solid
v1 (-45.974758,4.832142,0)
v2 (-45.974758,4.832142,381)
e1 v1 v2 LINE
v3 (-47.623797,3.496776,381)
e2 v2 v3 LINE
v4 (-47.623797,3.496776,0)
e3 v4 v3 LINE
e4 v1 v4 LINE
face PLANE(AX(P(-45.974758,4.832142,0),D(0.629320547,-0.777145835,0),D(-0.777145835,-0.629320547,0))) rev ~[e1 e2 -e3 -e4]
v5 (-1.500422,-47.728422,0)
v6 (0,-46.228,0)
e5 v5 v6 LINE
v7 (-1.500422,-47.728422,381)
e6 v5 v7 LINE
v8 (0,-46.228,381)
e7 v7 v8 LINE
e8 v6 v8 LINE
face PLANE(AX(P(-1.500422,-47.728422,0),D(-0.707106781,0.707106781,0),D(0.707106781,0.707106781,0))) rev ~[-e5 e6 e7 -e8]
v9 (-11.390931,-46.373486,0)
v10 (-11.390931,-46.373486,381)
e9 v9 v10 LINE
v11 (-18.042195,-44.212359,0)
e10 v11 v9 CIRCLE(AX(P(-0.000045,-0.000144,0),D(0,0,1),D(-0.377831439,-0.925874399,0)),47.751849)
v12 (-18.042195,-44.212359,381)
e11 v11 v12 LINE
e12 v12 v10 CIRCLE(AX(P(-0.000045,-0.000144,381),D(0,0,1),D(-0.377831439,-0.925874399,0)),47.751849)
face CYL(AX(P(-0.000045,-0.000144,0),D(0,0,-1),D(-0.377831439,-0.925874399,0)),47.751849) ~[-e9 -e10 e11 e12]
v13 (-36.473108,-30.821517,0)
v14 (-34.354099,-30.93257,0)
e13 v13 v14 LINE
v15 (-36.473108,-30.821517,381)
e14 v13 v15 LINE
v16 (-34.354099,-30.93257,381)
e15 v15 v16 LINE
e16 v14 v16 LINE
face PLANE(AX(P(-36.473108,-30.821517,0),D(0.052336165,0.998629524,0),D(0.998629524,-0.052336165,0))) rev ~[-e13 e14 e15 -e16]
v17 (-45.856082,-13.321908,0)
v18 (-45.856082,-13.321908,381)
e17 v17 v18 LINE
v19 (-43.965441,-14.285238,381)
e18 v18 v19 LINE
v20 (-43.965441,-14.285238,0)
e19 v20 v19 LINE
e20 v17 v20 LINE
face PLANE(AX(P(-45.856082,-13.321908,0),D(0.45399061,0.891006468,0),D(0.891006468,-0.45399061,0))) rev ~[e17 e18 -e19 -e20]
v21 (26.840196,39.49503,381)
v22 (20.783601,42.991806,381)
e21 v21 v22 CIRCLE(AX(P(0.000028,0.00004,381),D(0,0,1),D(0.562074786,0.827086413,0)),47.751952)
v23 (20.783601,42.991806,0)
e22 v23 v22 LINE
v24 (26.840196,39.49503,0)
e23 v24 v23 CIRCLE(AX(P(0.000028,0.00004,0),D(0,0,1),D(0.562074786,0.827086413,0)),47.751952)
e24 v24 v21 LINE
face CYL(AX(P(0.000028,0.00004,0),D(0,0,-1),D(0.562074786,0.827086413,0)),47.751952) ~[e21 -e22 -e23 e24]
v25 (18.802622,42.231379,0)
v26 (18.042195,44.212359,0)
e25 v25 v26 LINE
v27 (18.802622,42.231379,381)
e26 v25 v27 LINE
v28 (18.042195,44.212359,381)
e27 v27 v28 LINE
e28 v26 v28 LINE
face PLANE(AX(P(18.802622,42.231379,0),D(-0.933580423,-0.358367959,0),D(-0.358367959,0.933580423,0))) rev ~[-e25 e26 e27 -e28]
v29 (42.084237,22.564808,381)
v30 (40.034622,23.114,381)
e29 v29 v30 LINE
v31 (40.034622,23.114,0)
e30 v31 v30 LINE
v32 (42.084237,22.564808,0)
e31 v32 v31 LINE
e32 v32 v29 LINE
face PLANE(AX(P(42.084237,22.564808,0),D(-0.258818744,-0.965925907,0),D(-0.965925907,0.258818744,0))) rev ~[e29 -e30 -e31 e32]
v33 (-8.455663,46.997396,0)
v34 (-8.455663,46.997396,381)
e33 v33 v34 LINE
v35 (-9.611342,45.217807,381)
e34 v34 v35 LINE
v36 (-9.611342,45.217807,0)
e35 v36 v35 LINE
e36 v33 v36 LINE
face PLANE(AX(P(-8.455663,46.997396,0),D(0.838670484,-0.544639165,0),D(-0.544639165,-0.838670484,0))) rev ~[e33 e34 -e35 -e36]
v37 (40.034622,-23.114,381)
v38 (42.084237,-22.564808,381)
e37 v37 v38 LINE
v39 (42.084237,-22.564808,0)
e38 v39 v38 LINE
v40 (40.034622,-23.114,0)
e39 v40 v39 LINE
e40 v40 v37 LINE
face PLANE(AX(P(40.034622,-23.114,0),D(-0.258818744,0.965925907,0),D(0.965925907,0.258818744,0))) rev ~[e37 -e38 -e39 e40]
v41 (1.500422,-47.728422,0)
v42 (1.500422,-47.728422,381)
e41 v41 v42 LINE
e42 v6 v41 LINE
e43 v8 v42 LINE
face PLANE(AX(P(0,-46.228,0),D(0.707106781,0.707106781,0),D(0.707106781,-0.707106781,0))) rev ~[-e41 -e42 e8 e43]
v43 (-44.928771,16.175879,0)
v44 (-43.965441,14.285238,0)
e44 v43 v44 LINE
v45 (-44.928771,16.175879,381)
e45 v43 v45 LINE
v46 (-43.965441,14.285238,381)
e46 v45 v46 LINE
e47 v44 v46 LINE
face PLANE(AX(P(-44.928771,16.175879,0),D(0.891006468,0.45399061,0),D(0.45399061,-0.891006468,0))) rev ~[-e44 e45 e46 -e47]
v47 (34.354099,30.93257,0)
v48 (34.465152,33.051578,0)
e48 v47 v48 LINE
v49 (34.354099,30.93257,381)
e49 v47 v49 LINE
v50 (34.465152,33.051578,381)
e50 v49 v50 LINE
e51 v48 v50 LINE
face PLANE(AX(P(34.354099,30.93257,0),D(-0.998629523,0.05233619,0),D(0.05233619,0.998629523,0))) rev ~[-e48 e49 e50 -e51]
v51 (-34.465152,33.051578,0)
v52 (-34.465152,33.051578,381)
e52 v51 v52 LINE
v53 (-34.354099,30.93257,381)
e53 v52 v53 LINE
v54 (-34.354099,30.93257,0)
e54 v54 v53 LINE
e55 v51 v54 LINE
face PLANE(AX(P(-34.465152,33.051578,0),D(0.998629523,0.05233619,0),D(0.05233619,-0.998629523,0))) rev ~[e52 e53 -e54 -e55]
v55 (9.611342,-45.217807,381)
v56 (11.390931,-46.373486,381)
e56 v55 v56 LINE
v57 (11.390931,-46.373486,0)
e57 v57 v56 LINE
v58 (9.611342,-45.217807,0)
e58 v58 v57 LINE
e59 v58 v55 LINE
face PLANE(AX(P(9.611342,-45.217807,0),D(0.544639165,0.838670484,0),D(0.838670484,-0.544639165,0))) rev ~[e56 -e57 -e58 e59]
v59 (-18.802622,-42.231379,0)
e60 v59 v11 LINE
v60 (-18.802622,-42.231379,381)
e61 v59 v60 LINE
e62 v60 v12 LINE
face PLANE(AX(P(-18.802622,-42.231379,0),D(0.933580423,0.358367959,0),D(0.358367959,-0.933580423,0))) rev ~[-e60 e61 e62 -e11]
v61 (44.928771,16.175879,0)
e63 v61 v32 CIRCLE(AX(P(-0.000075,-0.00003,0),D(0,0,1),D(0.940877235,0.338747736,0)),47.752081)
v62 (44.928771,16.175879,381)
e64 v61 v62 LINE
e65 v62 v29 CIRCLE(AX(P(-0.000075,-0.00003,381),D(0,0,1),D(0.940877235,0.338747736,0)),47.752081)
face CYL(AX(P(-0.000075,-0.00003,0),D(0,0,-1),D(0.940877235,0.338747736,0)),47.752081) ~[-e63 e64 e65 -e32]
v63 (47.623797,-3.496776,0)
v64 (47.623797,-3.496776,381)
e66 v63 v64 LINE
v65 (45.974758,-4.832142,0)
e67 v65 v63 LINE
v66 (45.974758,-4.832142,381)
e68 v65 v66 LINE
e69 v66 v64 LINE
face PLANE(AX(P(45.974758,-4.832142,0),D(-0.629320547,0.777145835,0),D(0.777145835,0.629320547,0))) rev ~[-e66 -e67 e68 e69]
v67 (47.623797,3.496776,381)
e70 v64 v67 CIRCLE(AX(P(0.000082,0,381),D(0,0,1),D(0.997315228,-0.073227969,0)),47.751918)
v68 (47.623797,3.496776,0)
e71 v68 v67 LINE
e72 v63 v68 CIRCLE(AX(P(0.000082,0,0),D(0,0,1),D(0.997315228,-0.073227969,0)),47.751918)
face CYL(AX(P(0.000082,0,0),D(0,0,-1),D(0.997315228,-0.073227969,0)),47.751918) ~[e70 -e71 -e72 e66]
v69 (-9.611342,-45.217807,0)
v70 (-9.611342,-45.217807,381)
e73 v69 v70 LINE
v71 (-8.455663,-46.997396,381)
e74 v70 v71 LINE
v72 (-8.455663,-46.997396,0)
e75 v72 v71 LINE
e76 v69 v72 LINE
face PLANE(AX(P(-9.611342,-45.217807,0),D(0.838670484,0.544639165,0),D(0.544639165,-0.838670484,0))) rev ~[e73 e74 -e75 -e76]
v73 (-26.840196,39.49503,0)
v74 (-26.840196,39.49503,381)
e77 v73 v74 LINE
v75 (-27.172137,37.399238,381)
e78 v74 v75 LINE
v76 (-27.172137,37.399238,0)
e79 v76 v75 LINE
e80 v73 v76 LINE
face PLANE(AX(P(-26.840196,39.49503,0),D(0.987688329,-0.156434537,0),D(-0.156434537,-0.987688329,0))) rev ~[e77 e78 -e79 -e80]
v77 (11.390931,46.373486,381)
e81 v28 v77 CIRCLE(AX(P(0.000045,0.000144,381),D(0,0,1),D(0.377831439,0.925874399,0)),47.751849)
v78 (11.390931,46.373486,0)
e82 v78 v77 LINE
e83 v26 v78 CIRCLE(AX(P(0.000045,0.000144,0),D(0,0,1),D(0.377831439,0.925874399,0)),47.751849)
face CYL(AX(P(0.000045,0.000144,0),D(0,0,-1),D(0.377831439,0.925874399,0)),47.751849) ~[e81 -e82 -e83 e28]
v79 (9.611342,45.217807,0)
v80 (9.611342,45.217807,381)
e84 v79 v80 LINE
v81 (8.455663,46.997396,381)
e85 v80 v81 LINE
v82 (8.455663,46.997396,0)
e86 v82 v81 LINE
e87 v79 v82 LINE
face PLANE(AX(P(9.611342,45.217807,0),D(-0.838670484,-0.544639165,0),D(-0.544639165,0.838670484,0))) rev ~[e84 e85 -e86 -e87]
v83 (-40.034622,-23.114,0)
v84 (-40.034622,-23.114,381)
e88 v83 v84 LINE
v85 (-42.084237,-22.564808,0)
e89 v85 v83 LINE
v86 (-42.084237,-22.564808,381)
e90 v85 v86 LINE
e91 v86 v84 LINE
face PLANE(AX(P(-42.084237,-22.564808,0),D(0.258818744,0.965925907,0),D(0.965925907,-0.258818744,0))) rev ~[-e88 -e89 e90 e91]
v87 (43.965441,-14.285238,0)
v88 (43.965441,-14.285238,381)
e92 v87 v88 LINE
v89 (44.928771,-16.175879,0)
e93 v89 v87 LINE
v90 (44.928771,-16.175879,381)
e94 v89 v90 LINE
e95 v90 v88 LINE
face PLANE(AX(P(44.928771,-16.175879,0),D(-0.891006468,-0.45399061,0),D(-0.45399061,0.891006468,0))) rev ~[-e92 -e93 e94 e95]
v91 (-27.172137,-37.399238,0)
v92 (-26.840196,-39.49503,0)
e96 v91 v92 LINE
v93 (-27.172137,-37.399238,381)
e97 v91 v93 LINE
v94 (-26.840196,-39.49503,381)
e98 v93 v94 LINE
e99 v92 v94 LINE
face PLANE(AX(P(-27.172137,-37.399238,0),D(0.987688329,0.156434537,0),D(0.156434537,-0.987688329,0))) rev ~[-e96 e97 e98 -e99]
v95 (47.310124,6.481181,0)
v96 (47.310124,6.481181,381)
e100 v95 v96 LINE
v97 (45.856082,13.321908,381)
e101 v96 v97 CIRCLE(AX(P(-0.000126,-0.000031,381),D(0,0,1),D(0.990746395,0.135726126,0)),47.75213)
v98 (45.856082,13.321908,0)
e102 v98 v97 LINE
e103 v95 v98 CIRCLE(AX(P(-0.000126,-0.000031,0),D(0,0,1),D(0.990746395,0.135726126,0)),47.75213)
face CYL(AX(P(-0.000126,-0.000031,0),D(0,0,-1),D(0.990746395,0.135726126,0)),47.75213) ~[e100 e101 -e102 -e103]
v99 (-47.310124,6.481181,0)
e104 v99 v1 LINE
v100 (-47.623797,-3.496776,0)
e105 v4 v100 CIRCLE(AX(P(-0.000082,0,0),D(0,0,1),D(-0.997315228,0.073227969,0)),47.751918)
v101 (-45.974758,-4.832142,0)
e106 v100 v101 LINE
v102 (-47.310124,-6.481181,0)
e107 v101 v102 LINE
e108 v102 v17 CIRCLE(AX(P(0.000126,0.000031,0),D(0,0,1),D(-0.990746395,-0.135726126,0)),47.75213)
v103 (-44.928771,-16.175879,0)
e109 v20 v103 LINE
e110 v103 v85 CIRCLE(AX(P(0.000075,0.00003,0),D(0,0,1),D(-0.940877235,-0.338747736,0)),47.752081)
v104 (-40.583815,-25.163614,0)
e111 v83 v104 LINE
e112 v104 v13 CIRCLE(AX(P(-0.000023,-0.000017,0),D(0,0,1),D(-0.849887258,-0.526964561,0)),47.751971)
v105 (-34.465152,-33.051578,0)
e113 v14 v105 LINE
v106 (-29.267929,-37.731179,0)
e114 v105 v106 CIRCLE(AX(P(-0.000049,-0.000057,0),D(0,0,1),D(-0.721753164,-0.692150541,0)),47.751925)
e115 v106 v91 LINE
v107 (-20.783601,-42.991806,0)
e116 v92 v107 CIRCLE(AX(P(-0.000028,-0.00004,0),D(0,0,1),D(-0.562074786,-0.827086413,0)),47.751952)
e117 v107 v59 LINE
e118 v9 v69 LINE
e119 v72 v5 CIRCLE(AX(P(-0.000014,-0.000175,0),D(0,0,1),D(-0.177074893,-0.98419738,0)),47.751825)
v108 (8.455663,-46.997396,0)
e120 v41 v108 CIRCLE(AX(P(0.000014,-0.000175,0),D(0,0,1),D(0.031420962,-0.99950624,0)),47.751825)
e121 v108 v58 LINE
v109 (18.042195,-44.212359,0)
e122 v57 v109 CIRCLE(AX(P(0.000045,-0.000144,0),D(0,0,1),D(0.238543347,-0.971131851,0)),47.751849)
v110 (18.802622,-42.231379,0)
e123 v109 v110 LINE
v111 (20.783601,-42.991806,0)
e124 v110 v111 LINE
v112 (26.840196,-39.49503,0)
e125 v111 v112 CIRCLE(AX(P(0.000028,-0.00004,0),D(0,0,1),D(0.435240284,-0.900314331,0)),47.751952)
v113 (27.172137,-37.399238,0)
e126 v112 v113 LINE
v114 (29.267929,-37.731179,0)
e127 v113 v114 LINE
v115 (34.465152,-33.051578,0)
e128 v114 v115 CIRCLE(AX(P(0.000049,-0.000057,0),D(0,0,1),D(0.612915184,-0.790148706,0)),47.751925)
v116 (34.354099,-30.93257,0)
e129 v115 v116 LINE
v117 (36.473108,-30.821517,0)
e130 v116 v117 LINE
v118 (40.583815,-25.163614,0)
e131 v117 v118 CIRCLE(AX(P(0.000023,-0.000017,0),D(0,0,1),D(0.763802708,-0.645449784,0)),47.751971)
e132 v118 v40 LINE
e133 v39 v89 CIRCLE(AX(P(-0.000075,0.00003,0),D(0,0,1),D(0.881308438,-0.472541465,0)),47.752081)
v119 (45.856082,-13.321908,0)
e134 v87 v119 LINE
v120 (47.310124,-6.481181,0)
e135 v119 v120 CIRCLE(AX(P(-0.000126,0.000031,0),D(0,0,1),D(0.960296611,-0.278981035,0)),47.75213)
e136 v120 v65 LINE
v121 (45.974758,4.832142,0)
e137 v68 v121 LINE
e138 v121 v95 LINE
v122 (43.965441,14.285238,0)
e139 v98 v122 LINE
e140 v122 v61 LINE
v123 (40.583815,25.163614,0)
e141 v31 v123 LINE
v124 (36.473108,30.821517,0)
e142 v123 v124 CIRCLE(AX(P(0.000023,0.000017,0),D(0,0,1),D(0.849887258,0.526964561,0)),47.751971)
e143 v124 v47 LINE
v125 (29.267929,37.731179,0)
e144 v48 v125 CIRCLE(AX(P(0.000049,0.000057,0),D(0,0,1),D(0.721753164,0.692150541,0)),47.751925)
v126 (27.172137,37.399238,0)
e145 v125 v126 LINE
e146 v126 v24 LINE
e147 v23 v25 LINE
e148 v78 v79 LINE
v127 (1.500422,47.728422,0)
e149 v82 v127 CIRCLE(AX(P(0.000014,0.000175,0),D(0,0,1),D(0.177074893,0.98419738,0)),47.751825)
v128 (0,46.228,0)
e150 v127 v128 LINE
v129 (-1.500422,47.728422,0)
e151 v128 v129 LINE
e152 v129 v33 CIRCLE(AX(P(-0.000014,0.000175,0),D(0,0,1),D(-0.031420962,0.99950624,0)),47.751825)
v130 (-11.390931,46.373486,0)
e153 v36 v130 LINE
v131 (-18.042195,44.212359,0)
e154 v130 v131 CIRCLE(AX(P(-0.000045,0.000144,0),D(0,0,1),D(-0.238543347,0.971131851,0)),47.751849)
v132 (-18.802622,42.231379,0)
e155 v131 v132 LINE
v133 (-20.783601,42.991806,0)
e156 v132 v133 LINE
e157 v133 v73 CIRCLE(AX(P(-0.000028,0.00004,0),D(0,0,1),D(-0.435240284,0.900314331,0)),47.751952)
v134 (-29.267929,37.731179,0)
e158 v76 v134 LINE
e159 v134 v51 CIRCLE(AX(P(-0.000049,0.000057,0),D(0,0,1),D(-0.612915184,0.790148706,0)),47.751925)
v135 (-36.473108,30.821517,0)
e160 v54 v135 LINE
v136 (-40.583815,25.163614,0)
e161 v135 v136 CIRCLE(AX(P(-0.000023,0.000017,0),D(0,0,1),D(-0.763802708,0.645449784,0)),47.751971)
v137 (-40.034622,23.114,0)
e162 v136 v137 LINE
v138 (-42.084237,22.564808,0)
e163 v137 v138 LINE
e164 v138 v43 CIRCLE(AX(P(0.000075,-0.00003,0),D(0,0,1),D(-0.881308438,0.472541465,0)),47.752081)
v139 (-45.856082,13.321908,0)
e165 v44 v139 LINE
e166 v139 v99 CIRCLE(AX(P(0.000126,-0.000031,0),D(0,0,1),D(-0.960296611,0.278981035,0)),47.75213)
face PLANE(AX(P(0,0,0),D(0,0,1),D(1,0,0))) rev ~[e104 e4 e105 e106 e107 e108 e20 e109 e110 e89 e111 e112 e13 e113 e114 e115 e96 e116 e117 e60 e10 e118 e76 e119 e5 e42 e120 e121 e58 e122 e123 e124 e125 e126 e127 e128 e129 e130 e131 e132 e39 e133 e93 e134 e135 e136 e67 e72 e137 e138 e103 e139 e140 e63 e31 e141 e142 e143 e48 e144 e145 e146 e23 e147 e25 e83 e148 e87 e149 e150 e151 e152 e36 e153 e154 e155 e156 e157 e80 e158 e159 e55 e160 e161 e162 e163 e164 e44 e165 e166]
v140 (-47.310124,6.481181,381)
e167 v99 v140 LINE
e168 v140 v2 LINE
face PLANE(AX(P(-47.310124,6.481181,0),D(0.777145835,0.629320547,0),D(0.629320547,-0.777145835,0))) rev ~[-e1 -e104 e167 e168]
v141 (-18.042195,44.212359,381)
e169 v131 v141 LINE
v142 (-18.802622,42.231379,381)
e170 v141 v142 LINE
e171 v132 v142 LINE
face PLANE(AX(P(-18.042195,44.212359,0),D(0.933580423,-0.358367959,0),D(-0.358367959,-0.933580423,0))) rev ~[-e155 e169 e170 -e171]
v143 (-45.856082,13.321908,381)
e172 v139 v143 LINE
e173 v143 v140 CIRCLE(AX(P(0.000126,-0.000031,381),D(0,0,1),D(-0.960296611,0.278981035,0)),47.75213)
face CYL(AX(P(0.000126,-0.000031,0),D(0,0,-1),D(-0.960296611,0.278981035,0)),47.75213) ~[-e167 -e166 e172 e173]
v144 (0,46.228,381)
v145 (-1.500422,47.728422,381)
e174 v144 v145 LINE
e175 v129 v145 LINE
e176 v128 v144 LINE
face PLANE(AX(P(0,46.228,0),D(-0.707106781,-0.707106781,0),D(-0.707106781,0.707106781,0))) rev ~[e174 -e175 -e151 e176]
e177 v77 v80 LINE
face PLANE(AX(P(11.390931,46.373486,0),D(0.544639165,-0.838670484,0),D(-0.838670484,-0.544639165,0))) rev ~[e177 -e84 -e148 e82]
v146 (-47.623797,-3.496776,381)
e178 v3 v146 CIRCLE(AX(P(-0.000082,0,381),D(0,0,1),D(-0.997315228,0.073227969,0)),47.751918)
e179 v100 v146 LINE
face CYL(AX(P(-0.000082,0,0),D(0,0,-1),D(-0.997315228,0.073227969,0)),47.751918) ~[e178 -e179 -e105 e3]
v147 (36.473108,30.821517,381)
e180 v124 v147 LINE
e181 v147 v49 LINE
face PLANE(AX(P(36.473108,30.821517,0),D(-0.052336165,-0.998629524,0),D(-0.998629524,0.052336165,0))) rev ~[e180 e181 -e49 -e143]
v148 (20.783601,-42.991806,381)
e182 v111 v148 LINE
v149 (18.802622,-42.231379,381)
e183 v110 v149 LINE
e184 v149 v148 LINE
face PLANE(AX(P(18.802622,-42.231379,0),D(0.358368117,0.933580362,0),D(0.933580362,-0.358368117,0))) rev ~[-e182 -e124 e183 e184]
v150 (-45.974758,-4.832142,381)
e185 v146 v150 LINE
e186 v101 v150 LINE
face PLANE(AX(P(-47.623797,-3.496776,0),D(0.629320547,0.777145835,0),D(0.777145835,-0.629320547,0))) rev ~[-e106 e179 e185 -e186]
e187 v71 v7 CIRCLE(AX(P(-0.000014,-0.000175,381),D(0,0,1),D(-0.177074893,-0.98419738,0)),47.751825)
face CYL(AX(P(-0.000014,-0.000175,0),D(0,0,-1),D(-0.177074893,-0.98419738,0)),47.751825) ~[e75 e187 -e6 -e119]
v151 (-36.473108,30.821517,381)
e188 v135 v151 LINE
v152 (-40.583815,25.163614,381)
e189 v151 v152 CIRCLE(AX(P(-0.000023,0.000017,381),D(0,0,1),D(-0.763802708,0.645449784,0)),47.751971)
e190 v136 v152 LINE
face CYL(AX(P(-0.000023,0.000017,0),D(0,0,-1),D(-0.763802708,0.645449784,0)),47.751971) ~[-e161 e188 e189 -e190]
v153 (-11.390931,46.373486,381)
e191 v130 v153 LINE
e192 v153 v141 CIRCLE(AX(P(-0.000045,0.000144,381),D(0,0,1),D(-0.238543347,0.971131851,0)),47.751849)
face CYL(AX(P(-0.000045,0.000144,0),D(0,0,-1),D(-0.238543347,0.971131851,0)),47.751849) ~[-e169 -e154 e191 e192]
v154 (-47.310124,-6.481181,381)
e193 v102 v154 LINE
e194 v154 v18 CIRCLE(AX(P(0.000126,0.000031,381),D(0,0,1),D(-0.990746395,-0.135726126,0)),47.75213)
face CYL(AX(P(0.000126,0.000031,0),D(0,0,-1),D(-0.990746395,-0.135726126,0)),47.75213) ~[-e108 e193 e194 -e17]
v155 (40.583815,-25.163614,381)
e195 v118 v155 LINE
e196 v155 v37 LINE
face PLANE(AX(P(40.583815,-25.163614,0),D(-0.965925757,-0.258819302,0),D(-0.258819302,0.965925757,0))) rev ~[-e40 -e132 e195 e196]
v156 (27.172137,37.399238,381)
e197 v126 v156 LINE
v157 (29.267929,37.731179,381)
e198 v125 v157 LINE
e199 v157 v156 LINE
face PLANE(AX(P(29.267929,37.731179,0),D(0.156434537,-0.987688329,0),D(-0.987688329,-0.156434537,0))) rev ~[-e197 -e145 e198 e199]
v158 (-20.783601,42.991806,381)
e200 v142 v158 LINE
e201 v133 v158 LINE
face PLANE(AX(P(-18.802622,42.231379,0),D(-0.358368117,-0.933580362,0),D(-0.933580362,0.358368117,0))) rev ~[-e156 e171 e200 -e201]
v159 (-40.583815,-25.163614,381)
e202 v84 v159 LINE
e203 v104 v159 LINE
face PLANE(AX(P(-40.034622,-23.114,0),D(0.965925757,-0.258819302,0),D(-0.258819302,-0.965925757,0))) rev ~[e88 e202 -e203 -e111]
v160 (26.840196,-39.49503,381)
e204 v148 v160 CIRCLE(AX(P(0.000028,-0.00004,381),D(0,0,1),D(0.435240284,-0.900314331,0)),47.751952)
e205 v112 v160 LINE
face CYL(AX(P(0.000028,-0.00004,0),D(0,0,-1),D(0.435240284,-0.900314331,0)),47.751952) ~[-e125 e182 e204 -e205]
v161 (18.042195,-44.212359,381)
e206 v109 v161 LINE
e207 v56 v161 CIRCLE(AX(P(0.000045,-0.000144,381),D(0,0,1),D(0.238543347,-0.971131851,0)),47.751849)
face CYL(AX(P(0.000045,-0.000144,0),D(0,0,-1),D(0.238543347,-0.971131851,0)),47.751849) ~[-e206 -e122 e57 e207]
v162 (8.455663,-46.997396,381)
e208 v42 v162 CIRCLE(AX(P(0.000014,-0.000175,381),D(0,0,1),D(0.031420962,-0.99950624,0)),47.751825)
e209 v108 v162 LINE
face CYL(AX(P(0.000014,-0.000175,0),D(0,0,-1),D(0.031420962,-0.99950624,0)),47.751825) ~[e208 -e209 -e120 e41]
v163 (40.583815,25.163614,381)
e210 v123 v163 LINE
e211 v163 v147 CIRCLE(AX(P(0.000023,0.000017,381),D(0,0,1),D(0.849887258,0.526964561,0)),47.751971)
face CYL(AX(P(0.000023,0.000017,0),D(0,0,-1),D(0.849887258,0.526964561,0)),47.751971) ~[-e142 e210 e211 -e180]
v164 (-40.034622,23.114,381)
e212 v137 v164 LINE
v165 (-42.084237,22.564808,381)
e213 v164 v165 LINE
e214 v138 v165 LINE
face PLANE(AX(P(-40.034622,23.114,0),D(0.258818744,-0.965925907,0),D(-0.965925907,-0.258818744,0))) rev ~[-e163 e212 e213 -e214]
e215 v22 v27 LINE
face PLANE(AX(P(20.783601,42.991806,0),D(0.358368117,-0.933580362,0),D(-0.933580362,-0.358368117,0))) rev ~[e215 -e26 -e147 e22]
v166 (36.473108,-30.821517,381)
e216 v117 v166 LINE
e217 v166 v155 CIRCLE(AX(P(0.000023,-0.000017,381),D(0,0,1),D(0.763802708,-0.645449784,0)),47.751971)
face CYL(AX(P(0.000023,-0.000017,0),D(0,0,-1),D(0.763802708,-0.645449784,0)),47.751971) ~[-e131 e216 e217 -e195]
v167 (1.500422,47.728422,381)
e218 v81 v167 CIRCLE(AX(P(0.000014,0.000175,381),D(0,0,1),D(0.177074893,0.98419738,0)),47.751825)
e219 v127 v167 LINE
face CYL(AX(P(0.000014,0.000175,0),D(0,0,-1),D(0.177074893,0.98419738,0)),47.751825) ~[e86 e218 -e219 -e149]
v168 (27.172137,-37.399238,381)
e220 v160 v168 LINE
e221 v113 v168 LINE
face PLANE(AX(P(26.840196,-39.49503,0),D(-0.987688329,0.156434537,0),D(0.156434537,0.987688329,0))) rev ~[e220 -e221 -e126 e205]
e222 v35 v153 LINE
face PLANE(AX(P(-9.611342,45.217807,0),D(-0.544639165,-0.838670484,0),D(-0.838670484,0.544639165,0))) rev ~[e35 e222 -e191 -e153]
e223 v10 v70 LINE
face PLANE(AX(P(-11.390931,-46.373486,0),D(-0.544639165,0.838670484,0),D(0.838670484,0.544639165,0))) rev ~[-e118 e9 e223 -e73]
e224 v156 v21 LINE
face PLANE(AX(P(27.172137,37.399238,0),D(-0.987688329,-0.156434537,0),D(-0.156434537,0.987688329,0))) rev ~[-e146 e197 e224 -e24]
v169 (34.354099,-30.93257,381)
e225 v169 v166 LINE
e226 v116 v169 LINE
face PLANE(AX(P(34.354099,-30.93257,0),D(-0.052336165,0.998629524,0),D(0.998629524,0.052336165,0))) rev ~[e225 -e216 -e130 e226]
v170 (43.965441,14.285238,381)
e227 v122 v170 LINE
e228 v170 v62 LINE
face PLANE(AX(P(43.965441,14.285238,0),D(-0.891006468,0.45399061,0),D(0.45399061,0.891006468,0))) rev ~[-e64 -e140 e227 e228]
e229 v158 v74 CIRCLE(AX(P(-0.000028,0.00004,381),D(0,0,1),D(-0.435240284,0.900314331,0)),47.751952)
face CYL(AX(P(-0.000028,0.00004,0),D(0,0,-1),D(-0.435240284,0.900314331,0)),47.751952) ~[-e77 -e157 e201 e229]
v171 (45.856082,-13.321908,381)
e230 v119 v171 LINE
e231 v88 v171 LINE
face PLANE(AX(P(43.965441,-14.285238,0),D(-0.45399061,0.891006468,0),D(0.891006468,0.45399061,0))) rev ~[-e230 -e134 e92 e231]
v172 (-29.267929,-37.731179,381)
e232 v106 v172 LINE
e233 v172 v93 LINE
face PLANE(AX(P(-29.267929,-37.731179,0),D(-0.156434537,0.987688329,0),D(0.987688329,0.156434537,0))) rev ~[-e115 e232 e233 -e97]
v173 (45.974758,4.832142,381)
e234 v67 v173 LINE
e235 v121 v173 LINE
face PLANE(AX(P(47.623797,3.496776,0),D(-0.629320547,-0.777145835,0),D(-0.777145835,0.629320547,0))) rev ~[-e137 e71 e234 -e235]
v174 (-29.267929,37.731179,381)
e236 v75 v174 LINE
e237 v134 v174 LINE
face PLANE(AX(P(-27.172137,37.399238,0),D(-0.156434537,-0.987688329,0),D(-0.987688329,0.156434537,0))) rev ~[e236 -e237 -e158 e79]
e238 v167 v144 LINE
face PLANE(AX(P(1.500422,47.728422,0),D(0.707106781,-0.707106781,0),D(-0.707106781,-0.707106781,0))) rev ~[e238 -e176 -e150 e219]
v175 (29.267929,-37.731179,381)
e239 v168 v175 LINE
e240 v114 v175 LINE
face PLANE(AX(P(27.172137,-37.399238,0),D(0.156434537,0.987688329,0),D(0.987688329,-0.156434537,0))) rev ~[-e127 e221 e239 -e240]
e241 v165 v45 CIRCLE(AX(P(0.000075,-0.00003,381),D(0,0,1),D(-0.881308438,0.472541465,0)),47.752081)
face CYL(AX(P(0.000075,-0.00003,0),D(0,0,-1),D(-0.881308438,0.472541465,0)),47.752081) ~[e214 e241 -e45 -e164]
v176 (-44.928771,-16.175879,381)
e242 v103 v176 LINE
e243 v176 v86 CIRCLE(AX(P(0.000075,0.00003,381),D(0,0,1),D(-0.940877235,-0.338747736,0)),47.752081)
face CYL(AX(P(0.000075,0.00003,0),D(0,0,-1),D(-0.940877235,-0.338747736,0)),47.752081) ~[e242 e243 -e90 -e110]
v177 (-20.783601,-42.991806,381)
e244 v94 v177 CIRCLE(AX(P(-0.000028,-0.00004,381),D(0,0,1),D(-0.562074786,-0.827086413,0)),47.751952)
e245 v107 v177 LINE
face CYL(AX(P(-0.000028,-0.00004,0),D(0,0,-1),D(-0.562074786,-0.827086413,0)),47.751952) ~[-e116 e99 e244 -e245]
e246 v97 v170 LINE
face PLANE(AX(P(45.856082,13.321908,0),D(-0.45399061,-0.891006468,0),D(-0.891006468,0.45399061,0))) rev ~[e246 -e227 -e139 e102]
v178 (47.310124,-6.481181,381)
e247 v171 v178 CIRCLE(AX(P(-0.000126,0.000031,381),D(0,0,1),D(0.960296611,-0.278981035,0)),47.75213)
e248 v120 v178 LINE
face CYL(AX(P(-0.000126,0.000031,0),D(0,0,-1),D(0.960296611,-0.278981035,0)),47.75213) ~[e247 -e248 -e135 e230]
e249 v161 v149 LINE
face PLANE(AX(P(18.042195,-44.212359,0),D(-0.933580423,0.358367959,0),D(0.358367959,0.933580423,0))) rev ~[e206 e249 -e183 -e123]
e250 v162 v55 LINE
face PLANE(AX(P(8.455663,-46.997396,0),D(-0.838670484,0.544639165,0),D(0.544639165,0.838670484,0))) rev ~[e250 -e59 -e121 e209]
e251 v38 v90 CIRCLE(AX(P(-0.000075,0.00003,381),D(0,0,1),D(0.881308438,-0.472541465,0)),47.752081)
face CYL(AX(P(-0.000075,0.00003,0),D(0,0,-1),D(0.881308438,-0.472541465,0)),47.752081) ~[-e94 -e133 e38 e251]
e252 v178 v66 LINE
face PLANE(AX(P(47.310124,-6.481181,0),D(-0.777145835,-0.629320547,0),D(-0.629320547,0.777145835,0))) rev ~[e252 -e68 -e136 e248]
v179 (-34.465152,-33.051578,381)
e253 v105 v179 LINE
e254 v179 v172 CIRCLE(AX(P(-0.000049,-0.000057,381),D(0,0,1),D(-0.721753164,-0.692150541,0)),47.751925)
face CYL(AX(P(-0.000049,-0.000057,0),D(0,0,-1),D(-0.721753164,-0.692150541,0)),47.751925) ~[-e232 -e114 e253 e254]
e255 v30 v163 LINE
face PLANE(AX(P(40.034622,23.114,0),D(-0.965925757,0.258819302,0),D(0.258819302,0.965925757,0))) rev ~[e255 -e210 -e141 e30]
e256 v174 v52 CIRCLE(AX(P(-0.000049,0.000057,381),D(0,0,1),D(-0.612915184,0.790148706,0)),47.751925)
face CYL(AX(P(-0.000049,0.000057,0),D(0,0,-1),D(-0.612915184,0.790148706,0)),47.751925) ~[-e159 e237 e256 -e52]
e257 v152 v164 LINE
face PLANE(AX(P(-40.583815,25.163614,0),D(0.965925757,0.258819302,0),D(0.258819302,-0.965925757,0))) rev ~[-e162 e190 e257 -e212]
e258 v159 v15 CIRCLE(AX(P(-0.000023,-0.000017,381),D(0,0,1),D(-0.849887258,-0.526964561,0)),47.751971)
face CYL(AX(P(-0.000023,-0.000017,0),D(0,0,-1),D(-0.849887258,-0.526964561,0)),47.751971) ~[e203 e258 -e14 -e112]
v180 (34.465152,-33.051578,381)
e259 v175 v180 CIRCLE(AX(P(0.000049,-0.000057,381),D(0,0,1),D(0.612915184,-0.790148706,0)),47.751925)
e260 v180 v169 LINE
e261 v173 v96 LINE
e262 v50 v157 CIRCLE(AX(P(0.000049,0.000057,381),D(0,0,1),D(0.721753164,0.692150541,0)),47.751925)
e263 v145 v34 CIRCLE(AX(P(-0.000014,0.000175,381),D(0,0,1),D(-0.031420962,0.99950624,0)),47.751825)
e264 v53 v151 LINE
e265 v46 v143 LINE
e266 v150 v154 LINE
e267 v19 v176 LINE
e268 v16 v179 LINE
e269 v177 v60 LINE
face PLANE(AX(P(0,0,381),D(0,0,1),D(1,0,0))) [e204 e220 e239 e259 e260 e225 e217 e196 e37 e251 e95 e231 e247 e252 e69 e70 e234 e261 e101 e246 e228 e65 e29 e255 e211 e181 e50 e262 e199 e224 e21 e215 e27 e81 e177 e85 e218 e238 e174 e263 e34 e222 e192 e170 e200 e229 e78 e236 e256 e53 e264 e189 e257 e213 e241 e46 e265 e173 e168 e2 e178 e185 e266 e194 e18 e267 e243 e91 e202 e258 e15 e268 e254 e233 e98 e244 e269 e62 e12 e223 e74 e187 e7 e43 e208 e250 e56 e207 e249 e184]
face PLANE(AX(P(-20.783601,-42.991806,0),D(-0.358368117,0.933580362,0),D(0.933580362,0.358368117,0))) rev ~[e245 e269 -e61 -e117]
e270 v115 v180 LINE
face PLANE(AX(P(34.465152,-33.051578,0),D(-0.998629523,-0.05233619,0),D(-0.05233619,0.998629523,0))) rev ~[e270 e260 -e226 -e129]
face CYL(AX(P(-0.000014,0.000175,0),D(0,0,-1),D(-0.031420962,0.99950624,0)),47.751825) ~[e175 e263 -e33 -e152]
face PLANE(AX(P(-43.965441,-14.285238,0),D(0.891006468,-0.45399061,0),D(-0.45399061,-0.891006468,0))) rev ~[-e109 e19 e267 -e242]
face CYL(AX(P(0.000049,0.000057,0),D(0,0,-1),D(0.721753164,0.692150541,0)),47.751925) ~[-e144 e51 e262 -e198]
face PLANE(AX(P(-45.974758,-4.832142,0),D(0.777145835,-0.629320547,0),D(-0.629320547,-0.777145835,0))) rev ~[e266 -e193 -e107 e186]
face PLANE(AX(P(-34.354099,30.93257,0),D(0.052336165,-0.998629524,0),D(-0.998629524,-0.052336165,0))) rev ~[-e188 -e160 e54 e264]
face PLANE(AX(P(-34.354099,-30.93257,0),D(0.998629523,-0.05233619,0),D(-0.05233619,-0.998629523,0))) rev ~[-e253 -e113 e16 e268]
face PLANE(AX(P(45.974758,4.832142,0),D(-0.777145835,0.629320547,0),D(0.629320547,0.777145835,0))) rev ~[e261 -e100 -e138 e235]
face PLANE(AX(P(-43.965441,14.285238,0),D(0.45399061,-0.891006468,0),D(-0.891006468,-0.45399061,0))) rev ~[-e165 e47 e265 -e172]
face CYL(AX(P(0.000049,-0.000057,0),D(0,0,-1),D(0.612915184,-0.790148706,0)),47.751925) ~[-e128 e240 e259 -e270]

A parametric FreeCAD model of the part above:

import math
import FreeCAD as App
import Part
import Sketcher
Q = App.Units.Quantity

doc = App.newDocument("Part")
body = doc.addObject("PartDesign::Body", "Body")

sketch1 = doc.addObject("Sketcher::SketchObject", "Sketch")
body.addObject(sketch1)
sketch1.AttachmentSupport = (doc.XY_Plane, [""])
sketch1.MapMode = "FlatFace"
sketch1.addGeometry([
    Part.LineSegment(App.Vector(0, -46.228, 0), App.Vector(1.500422, -47.728422, 0)),
    Part.ArcOfCircle(Part.Circle(App.Vector(0.000014, -0.000175, 0), App.Vector(0, 0, 1), 47.751825), math.radians(-88.199415), math.radians(-79.800573)),
    Part.LineSegment(App.Vector(8.455663, -46.997396, 0), App.Vector(9.611342, -45.217807, 0)),
    Part.LineSegment(App.Vector(9.611342, -45.217807, 0), App.Vector(11.390931, -46.373486, 0)),
    Part.ArcOfCircle(Part.Circle(App.Vector(0.000045, -0.000144, 0), App.Vector(0, 0, 1), 47.751849), math.radians(-76.199417), math.radians(-67.800578)),
    Part.LineSegment(App.Vector(18.042195, -44.212359, 0), App.Vector(18.802622, -42.231379, 0)),
    Part.LineSegment(App.Vector(18.802622, -42.231379, 0), App.Vector(20.783601, -42.991806, 0)),
    Part.ArcOfCircle(Part.Circle(App.Vector(0.000028, -0.00004, 0), App.Vector(0, 0, 1), 47.751952), math.radians(-64.199416), math.radians(-55.800595)),
    Part.LineSegment(App.Vector(26.840196, -39.49503, 0), App.Vector(27.172137, -37.399238, 0)),
    Part.LineSegment(App.Vector(27.172137, -37.399238, 0), App.Vector(29.267929, -37.731179, 0)),
    Part.ArcOfCircle(Part.Circle(App.Vector(0.000049, -0.000057, 0), App.Vector(0, 0, 1), 47.751925), math.radians(-52.19941), math.radians(-43.800585)),
    Part.LineSegment(App.Vector(34.465152, -33.051578, 0), App.Vector(34.354099, -30.93257, 0)),
    Part.LineSegment(App.Vector(34.354099, -30.93257, 0), App.Vector(36.473108, -30.821517, 0)),
    Part.ArcOfCircle(Part.Circle(App.Vector(0.000023, -0.000017, 0), App.Vector(0, 0, 1), 47.751971), math.radians(-40.199407), math.radians(-31.800591)),
    Part.LineSegment(App.Vector(40.583815, -25.163614, 0), App.Vector(40.034622, -23.114, 0)),
    Part.LineSegment(App.Vector(40.034622, -23.114, 0), App.Vector(42.084237, -22.564808, 0)),
    Part.ArcOfCircle(Part.Circle(App.Vector(-0.000075, 0.00003, 0), App.Vector(0, 0, 1), 47.752081), math.radians(-28.199395), math.radians(-19.800598)),
    Part.LineSegment(App.Vector(44.928771, -16.175879, 0), App.Vector(43.965441, -14.285238, 0)),
    Part.LineSegment(App.Vector(43.965441, -14.285238, 0), App.Vector(45.856082, -13.321908, 0)),
    Part.ArcOfCircle(Part.Circle(App.Vector(-0.000126, 0.000031, 0), App.Vector(0, 0, 1), 47.75213), math.radians(-16.199399), math.radians(-7.80061)),
    Part.LineSegment(App.Vector(47.310124, -6.481181, 0), App.Vector(45.974758, -4.832142, 0)),
    Part.LineSegment(App.Vector(45.974758, -4.832142, 0), App.Vector(47.623797, -3.496776, 0)),
    Part.ArcOfCircle(Part.Circle(App.Vector(0.000082, 0, 0), App.Vector(0, 0, 1), 47.751918), math.radians(-4.199412), math.radians(4.199412)),
    Part.LineSegment(App.Vector(47.623797, 3.496776, 0), App.Vector(45.974758, 4.832142, 0)),
    Part.LineSegment(App.Vector(45.974758, 4.832142, 0), App.Vector(47.310124, 6.481181, 0)),
    Part.ArcOfCircle(Part.Circle(App.Vector(-0.000126, -0.000031, 0), App.Vector(0, 0, 1), 47.75213), math.radians(7.80061), math.radians(16.199399)),
    Part.LineSegment(App.Vector(45.856082, 13.321908, 0), App.Vector(43.965441, 14.285238, 0)),
    Part.LineSegment(App.Vector(43.965441, 14.285238, 0), App.Vector(44.928771, 16.175879, 0)),
    Part.ArcOfCircle(Part.Circle(App.Vector(-0.000075, -0.00003, 0), App.Vector(0, 0, 1), 47.752081), math.radians(19.800598), math.radians(28.199395)),
    Part.LineSegment(App.Vector(42.084237, 22.564808, 0), App.Vector(40.034622, 23.114, 0)),
    Part.LineSegment(App.Vector(40.034622, 23.114, 0), App.Vector(40.583815, 25.163614, 0)),
    Part.ArcOfCircle(Part.Circle(App.Vector(0.000023, 0.000017, 0), App.Vector(0, 0, 1), 47.751971), math.radians(31.800591), math.radians(40.199407)),
    Part.LineSegment(App.Vector(36.473108, 30.821517, 0), App.Vector(34.354099, 30.93257, 0)),
    Part.LineSegment(App.Vector(34.354099, 30.93257, 0), App.Vector(34.465152, 33.051578, 0)),
    Part.ArcOfCircle(Part.Circle(App.Vector(0.000049, 0.000057, 0), App.Vector(0, 0, 1), 47.751925), math.radians(43.800585), math.radians(52.19941)),
    Part.LineSegment(App.Vector(29.267929, 37.731179, 0), App.Vector(27.172137, 37.399238, 0)),
    Part.LineSegment(App.Vector(27.172137, 37.399238, 0), App.Vector(26.840196, 39.49503, 0)),
    Part.ArcOfCircle(Part.Circle(App.Vector(0.000028, 0.00004, 0), App.Vector(0, 0, 1), 47.751952), math.radians(55.800595), math.radians(64.199416)),
    Part.LineSegment(App.Vector(20.783601, 42.991806, 0), App.Vector(18.802622, 42.231379, 0)),
    Part.LineSegment(App.Vector(18.802622, 42.231379, 0), App.Vector(18.042195, 44.212359, 0)),
    Part.ArcOfCircle(Part.Circle(App.Vector(0.000045, 0.000144, 0), App.Vector(0, 0, 1), 47.751849), math.radians(67.800578), math.radians(76.199417)),
    Part.LineSegment(App.Vector(11.390931, 46.373486, 0), App.Vector(9.611342, 45.217807, 0)),
    Part.LineSegment(App.Vector(9.611342, 45.217807, 0), App.Vector(8.455663, 46.997396, 0)),
    Part.ArcOfCircle(Part.Circle(App.Vector(0.000014, 0.000175, 0), App.Vector(0, 0, 1), 47.751825), math.radians(79.800573), math.radians(88.199415)),
    Part.LineSegment(App.Vector(1.500422, 47.728422, 0), App.Vector(0, 46.228, 0)),
    Part.LineSegment(App.Vector(0, 46.228, 0), App.Vector(-1.500422, 47.728422, 0)),
    Part.ArcOfCircle(Part.Circle(App.Vector(-0.000014, 0.000175, 0), App.Vector(0, 0, 1), 47.751825), math.radians(91.800585), math.radians(100.199427)),
    Part.LineSegment(App.Vector(-8.455663, 46.997396, 0), App.Vector(-9.611342, 45.217807, 0)),
    Part.LineSegment(App.Vector(-9.611342, 45.217807, 0), App.Vector(-11.390931, 46.373486, 0)),
    Part.ArcOfCircle(Part.Circle(App.Vector(-0.000045, 0.000144, 0), App.Vector(0, 0, 1), 47.751849), math.radians(103.800583), math.radians(112.199422)),
    Part.LineSegment(App.Vector(-18.042195, 44.212359, 0), App.Vector(-18.802622, 42.231379, 0)),
    Part.LineSegment(App.Vector(-18.802622, 42.231379, 0), App.Vector(-20.783601, 42.991806, 0)),
    Part.ArcOfCircle(Part.Circle(App.Vector(-0.000028, 0.00004, 0), App.Vector(0, 0, 1), 47.751952), math.radians(115.800584), math.radians(124.199405)),
    Part.LineSegment(App.Vector(-26.840196, 39.49503, 0), App.Vector(-27.172137, 37.399238, 0)),
    Part.LineSegment(App.Vector(-27.172137, 37.399238, 0), App.Vector(-29.267929, 37.731179, 0)),
    Part.ArcOfCircle(Part.Circle(App.Vector(-0.000049, 0.000057, 0), App.Vector(0, 0, 1), 47.751925), math.radians(127.80059), math.radians(136.199415)),
    Part.LineSegment(App.Vector(-34.465152, 33.051578, 0), App.Vector(-34.354099, 30.93257, 0)),
    Part.LineSegment(App.Vector(-34.354099, 30.93257, 0), App.Vector(-36.473108, 30.821517, 0)),
    Part.ArcOfCircle(Part.Circle(App.Vector(-0.000023, 0.000017, 0), App.Vector(0, 0, 1), 47.751971), math.radians(139.800593), math.radians(148.199409)),
    Part.LineSegment(App.Vector(-40.583815, 25.163614, 0), App.Vector(-40.034622, 23.114, 0)),
    Part.LineSegment(App.Vector(-40.034622, 23.114, 0), App.Vector(-42.084237, 22.564808, 0)),
    Part.ArcOfCircle(Part.Circle(App.Vector(0.000075, -0.00003, 0), App.Vector(0, 0, 1), 47.752081), math.radians(151.800605), math.radians(160.199402)),
    Part.LineSegment(App.Vector(-44.928771, 16.175879, 0), App.Vector(-43.965441, 14.285238, 0)),
    Part.LineSegment(App.Vector(-43.965441, 14.285238, 0), App.Vector(-45.856082, 13.321908, 0)),
    Part.ArcOfCircle(Part.Circle(App.Vector(0.000126, -0.000031, 0), App.Vector(0, 0, 1), 47.75213), math.radians(163.800601), math.radians(172.19939)),
    Part.LineSegment(App.Vector(-47.310124, 6.481181, 0), App.Vector(-45.974758, 4.832142, 0)),
    Part.LineSegment(App.Vector(-45.974758, 4.832142, 0), App.Vector(-47.623797, 3.496776, 0)),
    Part.ArcOfCircle(Part.Circle(App.Vector(-0.000082, 0, 0), App.Vector(0, 0, 1), 47.751918), math.radians(175.800588), math.radians(184.199412)),
    Part.LineSegment(App.Vector(-47.623797, -3.496776, 0), App.Vector(-45.974758, -4.832142, 0)),
    Part.LineSegment(App.Vector(-45.974758, -4.832142, 0), App.Vector(-47.310124, -6.481181, 0)),
    Part.ArcOfCircle(Part.Circle(App.Vector(0.000126, 0.000031, 0), App.Vector(0, 0, 1), 47.75213), math.radians(-172.19939), math.radians(-163.800601)),
    Part.LineSegment(App.Vector(-45.856082, -13.321908, 0), App.Vector(-43.965441, -14.285238, 0)),
    Part.LineSegment(App.Vector(-43.965441, -14.285238, 0), App.Vector(-44.928771, -16.175879, 0)),
    Part.ArcOfCircle(Part.Circle(App.Vector(0.000075, 0.00003, 0), App.Vector(0, 0, 1), 47.752081), math.radians(-160.199402), math.radians(-151.800605)),
    Part.LineSegment(App.Vector(-42.084237, -22.564808, 0), App.Vector(-40.034622, -23.114, 0)),
    Part.LineSegment(App.Vector(-40.034622, -23.114, 0), App.Vector(-40.583815, -25.163614, 0)),
    Part.ArcOfCircle(Part.Circle(App.Vector(-0.000023, -0.000017, 0), App.Vector(0, 0, 1), 47.751971), math.radians(-148.199409), math.radians(-139.800593)),
    Part.LineSegment(App.Vector(-36.473108, -30.821517, 0), App.Vector(-34.354099, -30.93257, 0)),
    Part.LineSegment(App.Vector(-34.354099, -30.93257, 0), App.Vector(-34.465152, -33.051578, 0)),
    Part.ArcOfCircle(Part.Circle(App.Vector(-0.000049, -0.000057, 0), App.Vector(0, 0, 1), 47.751925), math.radians(-136.199415), math.radians(-127.80059)),
    Part.LineSegment(App.Vector(-29.267929, -37.731179, 0), App.Vector(-27.172137, -37.399238, 0)),
    Part.LineSegment(App.Vector(-27.172137, -37.399238, 0), App.Vector(-26.840196, -39.49503, 0)),
    Part.ArcOfCircle(Part.Circle(App.Vector(-0.000028, -0.00004, 0), App.Vector(0, 0, 1), 47.751952), math.radians(-124.199405), math.radians(-115.800584)),
    Part.LineSegment(App.Vector(-20.783601, -42.991806, 0), App.Vector(-18.802622, -42.231379, 0)),
    Part.LineSegment(App.Vector(-18.802622, -42.231379, 0), App.Vector(-18.042195, -44.212359, 0)),
    Part.ArcOfCircle(Part.Circle(App.Vector(-0.000045, -0.000144, 0), App.Vector(0, 0, 1), 47.751849), math.radians(-112.199422), math.radians(-103.800583)),
    Part.LineSegment(App.Vector(-11.390931, -46.373486, 0), App.Vector(-9.611342, -45.217807, 0)),
    Part.LineSegment(App.Vector(-9.611342, -45.217807, 0), App.Vector(-8.455663, -46.997396, 0)),
    Part.ArcOfCircle(Part.Circle(App.Vector(-0.000014, -0.000175, 0), App.Vector(0, 0, 1), 47.751825), math.radians(-100.199427), math.radians(-91.800585)),
    Part.LineSegment(App.Vector(-1.500422, -47.728422, 0), App.Vector(0, -46.228, 0)),
], False)
sketch1.addConstraint([
    Sketcher.Constraint("Coincident", 0, 2, 1, 1),
    Sketcher.Constraint("Coincident", 1, 2, 2, 1),
    Sketcher.Constraint("Coincident", 2, 2, 3, 1),
    Sketcher.Constraint("Coincident", 3, 2, 4, 1),
    Sketcher.Constraint("Coincident", 4, 2, 5, 1),
    Sketcher.Constraint("Coincident", 5, 2, 6, 1),
    Sketcher.Constraint("Coincident", 6, 2, 7, 1),
    Sketcher.Constraint("Coincident", 7, 2, 8, 1),
    Sketcher.Constraint("Coincident", 8, 2, 9, 1),
    Sketcher.Constraint("Coincident", 9, 2, 10, 1),
    Sketcher.Constraint("Coincident", 10, 2, 11, 1),
    Sketcher.Constraint("Coincident", 11, 2, 12, 1),
    Sketcher.Constraint("Coincident", 12, 2, 13, 1),
    Sketcher.Constraint("Coincident", 13, 2, 14, 1),
    Sketcher.Constraint("Coincident", 14, 2, 15, 1),
    Sketcher.Constraint("Coincident", 15, 2, 16, 1),
    Sketcher.Constraint("Coincident", 16, 2, 17, 1),
    Sketcher.Constraint("Coincident", 17, 2, 18, 1),
    Sketcher.Constraint("Coincident", 18, 2, 19, 1),
    Sketcher.Constraint("Coincident", 19, 2, 20, 1),
    Sketcher.Constraint("Coincident", 20, 2, 21, 1),
    Sketcher.Constraint("Coincident", 21, 2, 22, 1),
    Sketcher.Constraint("Coincident", 22, 2, 23, 1),
    Sketcher.Constraint("Coincident", 23, 2, 24, 1),
    Sketcher.Constraint("Coincident", 24, 2, 25, 1),
    Sketcher.Constraint("Coincident", 25, 2, 26, 1),
    Sketcher.Constraint("Coincident", 26, 2, 27, 1),
    Sketcher.Constraint("Coincident", 27, 2, 28, 1),
    Sketcher.Constraint("Coincident", 28, 2, 29, 1),
    Sketcher.Constraint("Coincident", 29, 2, 30, 1),
    Sketcher.Constraint("Coincident", 30, 2, 31, 1),
    Sketcher.Constraint("Coincident", 31, 2, 32, 1),
    Sketcher.Constraint("Coincident", 32, 2, 33, 1),
    Sketcher.Constraint("Coincident", 33, 2, 34, 1),
    Sketcher.Constraint("Coincident", 34, 2, 35, 1),
    Sketcher.Constraint("Coincident", 35, 2, 36, 1),
    Sketcher.Constraint("Coincident", 36, 2, 37, 1),
    Sketcher.Constraint("Coincident", 37, 2, 38, 1),
    Sketcher.Constraint("Coincident", 38, 2, 39, 1),
    Sketcher.Constraint("Coincident", 39, 2, 40, 1),
    Sketcher.Constraint("Coincident", 40, 2, 41, 1),
    Sketcher.Constraint("Coincident", 41, 2, 42, 1),
    Sketcher.Constraint("Coincident", 42, 2, 43, 1),
    Sketcher.Constraint("Coincident", 43, 2, 44, 1),
    Sketcher.Constraint("Coincident", 44, 2, 45, 1),
    Sketcher.Constraint("Coincident", 45, 2, 46, 1),
    Sketcher.Constraint("Coincident", 46, 2, 47, 1),
    Sketcher.Constraint("Coincident", 47, 2, 48, 1),
    Sketcher.Constraint("Coincident", 48, 2, 49, 1),
    Sketcher.Constraint("Coincident", 49, 2, 50, 1),
    Sketcher.Constraint("Coincident", 50, 2, 51, 1),
    Sketcher.Constraint("Coincident", 51, 2, 52, 1),
    Sketcher.Constraint("Coincident", 52, 2, 53, 1),
    Sketcher.Constraint("Coincident", 53, 2, 54, 1),
    Sketcher.Constraint("Coincident", 54, 2, 55, 1),
    Sketcher.Constraint("Coincident", 55, 2, 56, 1),
    Sketcher.Constraint("Coincident", 56, 2, 57, 1),
    Sketcher.Constraint("Coincident", 57, 2, 58, 1),
    Sketcher.Constraint("Coincident", 58, 2, 59, 1),
    Sketcher.Constraint("Coincident", 59, 2, 60, 1),
    Sketcher.Constraint("Coincident", 60, 2, 61, 1),
    Sketcher.Constraint("Coincident", 61, 2, 62, 1),
    Sketcher.Constraint("Coincident", 62, 2, 63, 1),
    Sketcher.Constraint("Coincident", 63, 2, 64, 1),
    Sketcher.Constraint("Coincident", 64, 2, 65, 1),
    Sketcher.Constraint("Coincident", 65, 2, 66, 1),
    Sketcher.Constraint("Coincident", 66, 2, 67, 1),
    Sketcher.Constraint("Coincident", 67, 2, 68, 1),
    Sketcher.Constraint("Coincident", 68, 2, 69, 1),
    Sketcher.Constraint("Coincident", 69, 2, 70, 1),
    Sketcher.Constraint("Coincident", 70, 2, 71, 1),
    Sketcher.Constraint("Coincident", 71, 2, 72, 1),
    Sketcher.Constraint("Coincident", 72, 2, 73, 1),
    Sketcher.Constraint("Coincident", 73, 2, 74, 1),
    Sketcher.Constraint("Coincident", 74, 2, 75, 1),
    Sketcher.Constraint("Coincident", 75, 2, 76, 1),
    Sketcher.Constraint("Coincident", 76, 2, 77, 1),
    Sketcher.Constraint("Coincident", 77, 2, 78, 1),
    Sketcher.Constraint("Coincident", 78, 2, 79, 1),
    Sketcher.Constraint("Coincident", 79, 2, 80, 1),
    Sketcher.Constraint("Coincident", 80, 2, 81, 1),
    Sketcher.Constraint("Coincident", 81, 2, 82, 1),
    Sketcher.Constraint("Coincident", 82, 2, 83, 1),
    Sketcher.Constraint("Coincident", 83, 2, 84, 1),
    Sketcher.Constraint("Coincident", 84, 2, 85, 1),
    Sketcher.Constraint("Coincident", 85, 2, 86, 1),
    Sketcher.Constraint("Coincident", 86, 2, 87, 1),
    Sketcher.Constraint("Coincident", 87, 2, 88, 1),
    Sketcher.Constraint("Coincident", 88, 2, 89, 1),
    Sketcher.Constraint("Coincident", 89, 2, 0, 1),
    Sketcher.Constraint("Equal", 19, 25),
    Sketcher.Constraint("Equal", 16, 28),
    Sketcher.Constraint("Equal", 13, 31),
    Sketcher.Constraint("Equal", 10, 34),
    Sketcher.Constraint("Equal", 7, 37),
    Sketcher.Constraint("Equal", 4, 40),
    Sketcher.Constraint("Equal", 1, 43),
    Sketcher.Constraint("Equal", 43, 46),
    Sketcher.Constraint("Equal", 40, 49),
    Sketcher.Constraint("Equal", 37, 52),
    Sketcher.Constraint("Equal", 34, 55),
    Sketcher.Constraint("Equal", 31, 58),
    Sketcher.Constraint("Equal", 28, 61),
    Sketcher.Constraint("Equal", 25, 64),
    Sketcher.Constraint("Equal", 22, 67),
    Sketcher.Constraint("Equal", 64, 70),
    Sketcher.Constraint("Equal", 61, 73),
    Sketcher.Constraint("Equal", 58, 76),
    Sketcher.Constraint("Equal", 55, 79),
    Sketcher.Constraint("Equal", 52, 82),
    Sketcher.Constraint("Equal", 49, 85),
    Sketcher.Constraint("Equal", 46, 88),
    Sketcher.Constraint("Symmetric", 1, 3, 46, 3, -1, 1),
    Sketcher.Constraint("Symmetric", 4, 3, 49, 3, -1, 1),
    Sketcher.Constraint("Symmetric", 7, 3, 52, 3, -1, 1),
    Sketcher.Constraint("Symmetric", 10, 3, 55, 3, -1, 1),
    Sketcher.Constraint("Symmetric", 13, 3, 58, 3, -1, 1),
    Sketcher.Constraint("Symmetric", 16, 3, 61, 3, -1, 1),
    Sketcher.Constraint("Symmetric", 19, 3, 64, 3, -1, 1),
    Sketcher.Constraint("Symmetric", 22, 3, 67, 3, -1, 1),
    Sketcher.Constraint("Symmetric", 25, 3, 70, 3, -1, 1),
    Sketcher.Constraint("Symmetric", 28, 3, 73, 3, -1, 1),
    Sketcher.Constraint("Symmetric", 31, 3, 76, 3, -1, 1),
    Sketcher.Constraint("Symmetric", 34, 3, 79, 3, -1, 1),
    Sketcher.Constraint("Symmetric", 37, 3, 82, 3, -1, 1),
    Sketcher.Constraint("Symmetric", 40, 3, 85, 3, -1, 1),
    Sketcher.Constraint("Symmetric", 43, 3, 88, 3, -1, 1),
    Sketcher.Constraint("Symmetric", 2, 2, 47, 2, -1, 1),
    Sketcher.Constraint("Symmetric", 5, 2, 50, 2, -1, 1),
    Sketcher.Constraint("Symmetric", 8, 2, 53, 2, -1, 1),
    Sketcher.Constraint("Symmetric", 11, 2, 56, 2, -1, 1),
    Sketcher.Constraint("Symmetric", 14, 2, 59, 2, -1, 1),
    Sketcher.Constraint("Symmetric", 17, 2, 62, 2, -1, 1),
    Sketcher.Constraint("Symmetric", 20, 2, 65, 2, -1, 1),
    Sketcher.Constraint("Symmetric", 23, 2, 68, 2, -1, 1),
    Sketcher.Constraint("Symmetric", 26, 2, 71, 2, -1, 1),
    Sketcher.Constraint("Symmetric", 29, 2, 74, 2, -1, 1),
    Sketcher.Constraint("Symmetric", 32, 2, 77, 2, -1, 1),
    Sketcher.Constraint("Symmetric", 35, 2, 80, 2, -1, 1),
    Sketcher.Constraint("Symmetric", 38, 2, 83, 2, -1, 1),
    Sketcher.Constraint("Symmetric", 41, 2, 86, 2, -1, 1),
    Sketcher.Constraint("Symmetric", 44, 2, 89, 2, -1, 1),
    Sketcher.Constraint("Symmetric", 43, 3, 46, 3, -2),
    Sketcher.Constraint("Symmetric", 40, 3, 49, 3, -2),
    Sketcher.Constraint("Symmetric", 37, 3, 52, 3, -2),
    Sketcher.Constraint("Symmetric", 34, 3, 55, 3, -2),
    Sketcher.Constraint("Symmetric", 31, 3, 58, 3, -2),
    Sketcher.Constraint("Symmetric", 28, 3, 61, 3, -2),
    Sketcher.Constraint("Symmetric", 25, 3, 64, 3, -2),
    Sketcher.Constraint("Symmetric", 41, 2, 47, 2, -2),
    Sketcher.Constraint("Symmetric", 38, 2, 50, 2, -2),
    Sketcher.Constraint("Symmetric", 35, 2, 53, 2, -2),
    Sketcher.Constraint("Symmetric", 32, 2, 56, 2, -2),
    Sketcher.Constraint("Symmetric", 29, 2, 59, 2, -2),
    Sketcher.Constraint("Symmetric", 26, 2, 62, 2, -2),
    Sketcher.Constraint("Symmetric", 23, 2, 65, 2, -2),
    Sketcher.Constraint("Symmetric", 22, 2, 66, 2, -2),
    Sketcher.Constraint("PointOnObject", 44, 2, -2),
    Sketcher.Constraint("Perpendicular", 2, 3),
    Sketcher.Constraint("Perpendicular", 5, 6),
    Sketcher.Constraint("Perpendicular", 8, 9),
    Sketcher.Constraint("Perpendicular", 11, 12),
    Sketcher.Constraint("Perpendicular", 14, 15),
    Sketcher.Constraint("Perpendicular", 17, 18),
    Sketcher.Constraint("Perpendicular", 20, 21),
    Sketcher.Constraint("Perpendicular", 23, 24),
    Sketcher.Constraint("Perpendicular", 26, 27),
    Sketcher.Constraint("Perpendicular", 29, 30),
    Sketcher.Constraint("Perpendicular", 32, 33),
    Sketcher.Constraint("Perpendicular", 35, 36),
    Sketcher.Constraint("Perpendicular", 38, 39),
    Sketcher.Constraint("Perpendicular", 41, 42),
    Sketcher.Constraint("Perpendicular", 0, 44),
    Sketcher.Constraint("Perpendicular", 44, 45),
    Sketcher.Constraint("Perpendicular", 3, 47),
    Sketcher.Constraint("Perpendicular", 47, 48),
    Sketcher.Constraint("Perpendicular", 6, 50),
    Sketcher.Constraint("Perpendicular", 50, 51),
    Sketcher.Constraint("Perpendicular", 9, 53),
    Sketcher.Constraint("Perpendicular", 53, 54),
    Sketcher.Constraint("Perpendicular", 12, 56),
    Sketcher.Constraint("Perpendicular", 56, 57),
    Sketcher.Constraint("Perpendicular", 15, 59),
    Sketcher.Constraint("Perpendicular", 59, 60),
    Sketcher.Constraint("Perpendicular", 18, 62),
    Sketcher.Constraint("Perpendicular", 62, 63),
    Sketcher.Constraint("Perpendicular", 21, 65),
    Sketcher.Constraint("Perpendicular", 65, 66),
    Sketcher.Constraint("Perpendicular", 24, 68),
    Sketcher.Constraint("Perpendicular", 68, 69),
    Sketcher.Constraint("Perpendicular", 27, 71),
    Sketcher.Constraint("Perpendicular", 71, 72),
    Sketcher.Constraint("Perpendicular", 30, 74),
    Sketcher.Constraint("Perpendicular", 74, 75),
    Sketcher.Constraint("Perpendicular", 33, 77),
    Sketcher.Constraint("Perpendicular", 77, 78),
    Sketcher.Constraint("Perpendicular", 36, 80),
    Sketcher.Constraint("Perpendicular", 80, 81),
    Sketcher.Constraint("Perpendicular", 39, 83),
    Sketcher.Constraint("Perpendicular", 83, 84),
    Sketcher.Constraint("Perpendicular", 42, 86),
    Sketcher.Constraint("Perpendicular", 86, 87),
    Sketcher.Constraint("Perpendicular", 45, 89),
    Sketcher.Constraint("Horizontal", 16, 3, 19, 3),
    Sketcher.Constraint("Horizontal", 43, 2, 45, 2),
    Sketcher.Constraint("Horizontal", 42, 2, 46, 2),
    Sketcher.Constraint("Horizontal", 39, 2, 49, 2),
    Sketcher.Constraint("Horizontal", 36, 2, 52, 2),
    Sketcher.Constraint("Horizontal", 33, 2, 55, 2),
    Sketcher.Constraint("Horizontal", 30, 2, 58, 2),
    Sketcher.Constraint("Horizontal", 27, 2, 61, 2),
    Sketcher.Constraint("Equal", 0, 2),
    Sketcher.Constraint("Equal", 2, 3),
    Sketcher.Constraint("Equal", 3, 5),
    Sketcher.Constraint("Equal", 5, 6),
    Sketcher.Constraint("Equal", 6, 8),
    Sketcher.Constraint("Equal", 8, 9),
    Sketcher.Constraint("Equal", 9, 11),
    Sketcher.Constraint("Equal", 11, 12),
    Sketcher.Constraint("Equal", 12, 14),
    Sketcher.Constraint("Equal", 14, 15),
    Sketcher.Constraint("Equal", 15, 17),
    Sketcher.Constraint("Equal", 17, 18),
    Sketcher.Constraint("Equal", 18, 20),
    Sketcher.Constraint("Equal", 20, 21),
    Sketcher.Constraint("Angle", 2, Q("56.999991 deg")),
    Sketcher.Constraint("Angle", 5, Q("68.999999 deg")),
    Sketcher.Constraint("Angle", 8, Q("80.999996 deg")),
    Sketcher.Constraint("Angle", 11, Q("93.000013 deg")),
    Sketcher.Constraint("Angle", 14, Q("105.000015 deg")),
    Sketcher.Constraint("Angle", 17, Q("117.000007 deg")),
    Sketcher.Constraint("Angle", 20, Q("129.000011 deg")),
    Sketcher.Constraint("DistanceY", 14, 2, -1, 1, Q("0.91 in")),
    Sketcher.Constraint("DistanceY", -1, 1, 44, 2, Q("1.82 in")),
    Sketcher.Constraint("Radius", 4, Q("47.751849 mm")),
    Sketcher.Constraint("Radius", 7, Q("47.751952 mm")),
    Sketcher.Constraint("Radius", 13, Q("47.751971 mm")),
    Sketcher.Constraint("Radius", 16, Q("47.752081 mm")),
    Sketcher.Constraint("Radius", 19, Q("47.75213 mm")),
    Sketcher.Constraint("Radius", 22, Q("47.751918 mm")),
    Sketcher.Constraint("DistanceX", -1, 1, 1, 2, Q("0.3329001 in")),
    Sketcher.Constraint("Radius", 1, Q("47.751825 mm")),
    Sketcher.Constraint("Radius", 10, Q("47.751925 mm")),
    Sketcher.Constraint("DistanceX", -1, 1, 6, 2, Q("20.783601 mm")),
    Sketcher.Constraint("DistanceX", -1, 1, 11, 2, Q("34.354099 mm")),
    Sketcher.Constraint("DistanceX", -1, 1, 0, 2, Q("1.500422 mm")),
    Sketcher.Constraint("DistanceY", 4, 2, -1, 1, Q("44.212359 mm")),
    Sketcher.Constraint("DistanceY", 7, 2, -1, 1, Q("39.49503 mm")),
    Sketcher.Constraint("DistanceX", -1, 1, 9, 2, Q("29.267929 mm")),
    Sketcher.Constraint("DistanceY", 11, 2, -1, 1, Q("30.93257 mm")),
    Sketcher.Constraint("DistanceX", -1, 1, 16, 2, Q("44.928771 mm")),
    Sketcher.Constraint("DistanceY", 16, 2, -1, 1, Q("16.175879 mm")),
    Sketcher.Constraint("DistanceY", 19, 2, -1, 1, Q("6.481181 mm")),
    Sketcher.Constraint("DistanceY", 1, 3, -1, 1, Q("0.000175 mm")),
    Sketcher.Constraint("DistanceX", 19, 3, -1, 1, Q("0.000126 mm")),
])
pad1 = doc.addObject("PartDesign::Pad", "Pad")
body.addObject(pad1)
pad1.Profile = sketch1
pad1.Length = Q("15 in")

doc.recompute()
